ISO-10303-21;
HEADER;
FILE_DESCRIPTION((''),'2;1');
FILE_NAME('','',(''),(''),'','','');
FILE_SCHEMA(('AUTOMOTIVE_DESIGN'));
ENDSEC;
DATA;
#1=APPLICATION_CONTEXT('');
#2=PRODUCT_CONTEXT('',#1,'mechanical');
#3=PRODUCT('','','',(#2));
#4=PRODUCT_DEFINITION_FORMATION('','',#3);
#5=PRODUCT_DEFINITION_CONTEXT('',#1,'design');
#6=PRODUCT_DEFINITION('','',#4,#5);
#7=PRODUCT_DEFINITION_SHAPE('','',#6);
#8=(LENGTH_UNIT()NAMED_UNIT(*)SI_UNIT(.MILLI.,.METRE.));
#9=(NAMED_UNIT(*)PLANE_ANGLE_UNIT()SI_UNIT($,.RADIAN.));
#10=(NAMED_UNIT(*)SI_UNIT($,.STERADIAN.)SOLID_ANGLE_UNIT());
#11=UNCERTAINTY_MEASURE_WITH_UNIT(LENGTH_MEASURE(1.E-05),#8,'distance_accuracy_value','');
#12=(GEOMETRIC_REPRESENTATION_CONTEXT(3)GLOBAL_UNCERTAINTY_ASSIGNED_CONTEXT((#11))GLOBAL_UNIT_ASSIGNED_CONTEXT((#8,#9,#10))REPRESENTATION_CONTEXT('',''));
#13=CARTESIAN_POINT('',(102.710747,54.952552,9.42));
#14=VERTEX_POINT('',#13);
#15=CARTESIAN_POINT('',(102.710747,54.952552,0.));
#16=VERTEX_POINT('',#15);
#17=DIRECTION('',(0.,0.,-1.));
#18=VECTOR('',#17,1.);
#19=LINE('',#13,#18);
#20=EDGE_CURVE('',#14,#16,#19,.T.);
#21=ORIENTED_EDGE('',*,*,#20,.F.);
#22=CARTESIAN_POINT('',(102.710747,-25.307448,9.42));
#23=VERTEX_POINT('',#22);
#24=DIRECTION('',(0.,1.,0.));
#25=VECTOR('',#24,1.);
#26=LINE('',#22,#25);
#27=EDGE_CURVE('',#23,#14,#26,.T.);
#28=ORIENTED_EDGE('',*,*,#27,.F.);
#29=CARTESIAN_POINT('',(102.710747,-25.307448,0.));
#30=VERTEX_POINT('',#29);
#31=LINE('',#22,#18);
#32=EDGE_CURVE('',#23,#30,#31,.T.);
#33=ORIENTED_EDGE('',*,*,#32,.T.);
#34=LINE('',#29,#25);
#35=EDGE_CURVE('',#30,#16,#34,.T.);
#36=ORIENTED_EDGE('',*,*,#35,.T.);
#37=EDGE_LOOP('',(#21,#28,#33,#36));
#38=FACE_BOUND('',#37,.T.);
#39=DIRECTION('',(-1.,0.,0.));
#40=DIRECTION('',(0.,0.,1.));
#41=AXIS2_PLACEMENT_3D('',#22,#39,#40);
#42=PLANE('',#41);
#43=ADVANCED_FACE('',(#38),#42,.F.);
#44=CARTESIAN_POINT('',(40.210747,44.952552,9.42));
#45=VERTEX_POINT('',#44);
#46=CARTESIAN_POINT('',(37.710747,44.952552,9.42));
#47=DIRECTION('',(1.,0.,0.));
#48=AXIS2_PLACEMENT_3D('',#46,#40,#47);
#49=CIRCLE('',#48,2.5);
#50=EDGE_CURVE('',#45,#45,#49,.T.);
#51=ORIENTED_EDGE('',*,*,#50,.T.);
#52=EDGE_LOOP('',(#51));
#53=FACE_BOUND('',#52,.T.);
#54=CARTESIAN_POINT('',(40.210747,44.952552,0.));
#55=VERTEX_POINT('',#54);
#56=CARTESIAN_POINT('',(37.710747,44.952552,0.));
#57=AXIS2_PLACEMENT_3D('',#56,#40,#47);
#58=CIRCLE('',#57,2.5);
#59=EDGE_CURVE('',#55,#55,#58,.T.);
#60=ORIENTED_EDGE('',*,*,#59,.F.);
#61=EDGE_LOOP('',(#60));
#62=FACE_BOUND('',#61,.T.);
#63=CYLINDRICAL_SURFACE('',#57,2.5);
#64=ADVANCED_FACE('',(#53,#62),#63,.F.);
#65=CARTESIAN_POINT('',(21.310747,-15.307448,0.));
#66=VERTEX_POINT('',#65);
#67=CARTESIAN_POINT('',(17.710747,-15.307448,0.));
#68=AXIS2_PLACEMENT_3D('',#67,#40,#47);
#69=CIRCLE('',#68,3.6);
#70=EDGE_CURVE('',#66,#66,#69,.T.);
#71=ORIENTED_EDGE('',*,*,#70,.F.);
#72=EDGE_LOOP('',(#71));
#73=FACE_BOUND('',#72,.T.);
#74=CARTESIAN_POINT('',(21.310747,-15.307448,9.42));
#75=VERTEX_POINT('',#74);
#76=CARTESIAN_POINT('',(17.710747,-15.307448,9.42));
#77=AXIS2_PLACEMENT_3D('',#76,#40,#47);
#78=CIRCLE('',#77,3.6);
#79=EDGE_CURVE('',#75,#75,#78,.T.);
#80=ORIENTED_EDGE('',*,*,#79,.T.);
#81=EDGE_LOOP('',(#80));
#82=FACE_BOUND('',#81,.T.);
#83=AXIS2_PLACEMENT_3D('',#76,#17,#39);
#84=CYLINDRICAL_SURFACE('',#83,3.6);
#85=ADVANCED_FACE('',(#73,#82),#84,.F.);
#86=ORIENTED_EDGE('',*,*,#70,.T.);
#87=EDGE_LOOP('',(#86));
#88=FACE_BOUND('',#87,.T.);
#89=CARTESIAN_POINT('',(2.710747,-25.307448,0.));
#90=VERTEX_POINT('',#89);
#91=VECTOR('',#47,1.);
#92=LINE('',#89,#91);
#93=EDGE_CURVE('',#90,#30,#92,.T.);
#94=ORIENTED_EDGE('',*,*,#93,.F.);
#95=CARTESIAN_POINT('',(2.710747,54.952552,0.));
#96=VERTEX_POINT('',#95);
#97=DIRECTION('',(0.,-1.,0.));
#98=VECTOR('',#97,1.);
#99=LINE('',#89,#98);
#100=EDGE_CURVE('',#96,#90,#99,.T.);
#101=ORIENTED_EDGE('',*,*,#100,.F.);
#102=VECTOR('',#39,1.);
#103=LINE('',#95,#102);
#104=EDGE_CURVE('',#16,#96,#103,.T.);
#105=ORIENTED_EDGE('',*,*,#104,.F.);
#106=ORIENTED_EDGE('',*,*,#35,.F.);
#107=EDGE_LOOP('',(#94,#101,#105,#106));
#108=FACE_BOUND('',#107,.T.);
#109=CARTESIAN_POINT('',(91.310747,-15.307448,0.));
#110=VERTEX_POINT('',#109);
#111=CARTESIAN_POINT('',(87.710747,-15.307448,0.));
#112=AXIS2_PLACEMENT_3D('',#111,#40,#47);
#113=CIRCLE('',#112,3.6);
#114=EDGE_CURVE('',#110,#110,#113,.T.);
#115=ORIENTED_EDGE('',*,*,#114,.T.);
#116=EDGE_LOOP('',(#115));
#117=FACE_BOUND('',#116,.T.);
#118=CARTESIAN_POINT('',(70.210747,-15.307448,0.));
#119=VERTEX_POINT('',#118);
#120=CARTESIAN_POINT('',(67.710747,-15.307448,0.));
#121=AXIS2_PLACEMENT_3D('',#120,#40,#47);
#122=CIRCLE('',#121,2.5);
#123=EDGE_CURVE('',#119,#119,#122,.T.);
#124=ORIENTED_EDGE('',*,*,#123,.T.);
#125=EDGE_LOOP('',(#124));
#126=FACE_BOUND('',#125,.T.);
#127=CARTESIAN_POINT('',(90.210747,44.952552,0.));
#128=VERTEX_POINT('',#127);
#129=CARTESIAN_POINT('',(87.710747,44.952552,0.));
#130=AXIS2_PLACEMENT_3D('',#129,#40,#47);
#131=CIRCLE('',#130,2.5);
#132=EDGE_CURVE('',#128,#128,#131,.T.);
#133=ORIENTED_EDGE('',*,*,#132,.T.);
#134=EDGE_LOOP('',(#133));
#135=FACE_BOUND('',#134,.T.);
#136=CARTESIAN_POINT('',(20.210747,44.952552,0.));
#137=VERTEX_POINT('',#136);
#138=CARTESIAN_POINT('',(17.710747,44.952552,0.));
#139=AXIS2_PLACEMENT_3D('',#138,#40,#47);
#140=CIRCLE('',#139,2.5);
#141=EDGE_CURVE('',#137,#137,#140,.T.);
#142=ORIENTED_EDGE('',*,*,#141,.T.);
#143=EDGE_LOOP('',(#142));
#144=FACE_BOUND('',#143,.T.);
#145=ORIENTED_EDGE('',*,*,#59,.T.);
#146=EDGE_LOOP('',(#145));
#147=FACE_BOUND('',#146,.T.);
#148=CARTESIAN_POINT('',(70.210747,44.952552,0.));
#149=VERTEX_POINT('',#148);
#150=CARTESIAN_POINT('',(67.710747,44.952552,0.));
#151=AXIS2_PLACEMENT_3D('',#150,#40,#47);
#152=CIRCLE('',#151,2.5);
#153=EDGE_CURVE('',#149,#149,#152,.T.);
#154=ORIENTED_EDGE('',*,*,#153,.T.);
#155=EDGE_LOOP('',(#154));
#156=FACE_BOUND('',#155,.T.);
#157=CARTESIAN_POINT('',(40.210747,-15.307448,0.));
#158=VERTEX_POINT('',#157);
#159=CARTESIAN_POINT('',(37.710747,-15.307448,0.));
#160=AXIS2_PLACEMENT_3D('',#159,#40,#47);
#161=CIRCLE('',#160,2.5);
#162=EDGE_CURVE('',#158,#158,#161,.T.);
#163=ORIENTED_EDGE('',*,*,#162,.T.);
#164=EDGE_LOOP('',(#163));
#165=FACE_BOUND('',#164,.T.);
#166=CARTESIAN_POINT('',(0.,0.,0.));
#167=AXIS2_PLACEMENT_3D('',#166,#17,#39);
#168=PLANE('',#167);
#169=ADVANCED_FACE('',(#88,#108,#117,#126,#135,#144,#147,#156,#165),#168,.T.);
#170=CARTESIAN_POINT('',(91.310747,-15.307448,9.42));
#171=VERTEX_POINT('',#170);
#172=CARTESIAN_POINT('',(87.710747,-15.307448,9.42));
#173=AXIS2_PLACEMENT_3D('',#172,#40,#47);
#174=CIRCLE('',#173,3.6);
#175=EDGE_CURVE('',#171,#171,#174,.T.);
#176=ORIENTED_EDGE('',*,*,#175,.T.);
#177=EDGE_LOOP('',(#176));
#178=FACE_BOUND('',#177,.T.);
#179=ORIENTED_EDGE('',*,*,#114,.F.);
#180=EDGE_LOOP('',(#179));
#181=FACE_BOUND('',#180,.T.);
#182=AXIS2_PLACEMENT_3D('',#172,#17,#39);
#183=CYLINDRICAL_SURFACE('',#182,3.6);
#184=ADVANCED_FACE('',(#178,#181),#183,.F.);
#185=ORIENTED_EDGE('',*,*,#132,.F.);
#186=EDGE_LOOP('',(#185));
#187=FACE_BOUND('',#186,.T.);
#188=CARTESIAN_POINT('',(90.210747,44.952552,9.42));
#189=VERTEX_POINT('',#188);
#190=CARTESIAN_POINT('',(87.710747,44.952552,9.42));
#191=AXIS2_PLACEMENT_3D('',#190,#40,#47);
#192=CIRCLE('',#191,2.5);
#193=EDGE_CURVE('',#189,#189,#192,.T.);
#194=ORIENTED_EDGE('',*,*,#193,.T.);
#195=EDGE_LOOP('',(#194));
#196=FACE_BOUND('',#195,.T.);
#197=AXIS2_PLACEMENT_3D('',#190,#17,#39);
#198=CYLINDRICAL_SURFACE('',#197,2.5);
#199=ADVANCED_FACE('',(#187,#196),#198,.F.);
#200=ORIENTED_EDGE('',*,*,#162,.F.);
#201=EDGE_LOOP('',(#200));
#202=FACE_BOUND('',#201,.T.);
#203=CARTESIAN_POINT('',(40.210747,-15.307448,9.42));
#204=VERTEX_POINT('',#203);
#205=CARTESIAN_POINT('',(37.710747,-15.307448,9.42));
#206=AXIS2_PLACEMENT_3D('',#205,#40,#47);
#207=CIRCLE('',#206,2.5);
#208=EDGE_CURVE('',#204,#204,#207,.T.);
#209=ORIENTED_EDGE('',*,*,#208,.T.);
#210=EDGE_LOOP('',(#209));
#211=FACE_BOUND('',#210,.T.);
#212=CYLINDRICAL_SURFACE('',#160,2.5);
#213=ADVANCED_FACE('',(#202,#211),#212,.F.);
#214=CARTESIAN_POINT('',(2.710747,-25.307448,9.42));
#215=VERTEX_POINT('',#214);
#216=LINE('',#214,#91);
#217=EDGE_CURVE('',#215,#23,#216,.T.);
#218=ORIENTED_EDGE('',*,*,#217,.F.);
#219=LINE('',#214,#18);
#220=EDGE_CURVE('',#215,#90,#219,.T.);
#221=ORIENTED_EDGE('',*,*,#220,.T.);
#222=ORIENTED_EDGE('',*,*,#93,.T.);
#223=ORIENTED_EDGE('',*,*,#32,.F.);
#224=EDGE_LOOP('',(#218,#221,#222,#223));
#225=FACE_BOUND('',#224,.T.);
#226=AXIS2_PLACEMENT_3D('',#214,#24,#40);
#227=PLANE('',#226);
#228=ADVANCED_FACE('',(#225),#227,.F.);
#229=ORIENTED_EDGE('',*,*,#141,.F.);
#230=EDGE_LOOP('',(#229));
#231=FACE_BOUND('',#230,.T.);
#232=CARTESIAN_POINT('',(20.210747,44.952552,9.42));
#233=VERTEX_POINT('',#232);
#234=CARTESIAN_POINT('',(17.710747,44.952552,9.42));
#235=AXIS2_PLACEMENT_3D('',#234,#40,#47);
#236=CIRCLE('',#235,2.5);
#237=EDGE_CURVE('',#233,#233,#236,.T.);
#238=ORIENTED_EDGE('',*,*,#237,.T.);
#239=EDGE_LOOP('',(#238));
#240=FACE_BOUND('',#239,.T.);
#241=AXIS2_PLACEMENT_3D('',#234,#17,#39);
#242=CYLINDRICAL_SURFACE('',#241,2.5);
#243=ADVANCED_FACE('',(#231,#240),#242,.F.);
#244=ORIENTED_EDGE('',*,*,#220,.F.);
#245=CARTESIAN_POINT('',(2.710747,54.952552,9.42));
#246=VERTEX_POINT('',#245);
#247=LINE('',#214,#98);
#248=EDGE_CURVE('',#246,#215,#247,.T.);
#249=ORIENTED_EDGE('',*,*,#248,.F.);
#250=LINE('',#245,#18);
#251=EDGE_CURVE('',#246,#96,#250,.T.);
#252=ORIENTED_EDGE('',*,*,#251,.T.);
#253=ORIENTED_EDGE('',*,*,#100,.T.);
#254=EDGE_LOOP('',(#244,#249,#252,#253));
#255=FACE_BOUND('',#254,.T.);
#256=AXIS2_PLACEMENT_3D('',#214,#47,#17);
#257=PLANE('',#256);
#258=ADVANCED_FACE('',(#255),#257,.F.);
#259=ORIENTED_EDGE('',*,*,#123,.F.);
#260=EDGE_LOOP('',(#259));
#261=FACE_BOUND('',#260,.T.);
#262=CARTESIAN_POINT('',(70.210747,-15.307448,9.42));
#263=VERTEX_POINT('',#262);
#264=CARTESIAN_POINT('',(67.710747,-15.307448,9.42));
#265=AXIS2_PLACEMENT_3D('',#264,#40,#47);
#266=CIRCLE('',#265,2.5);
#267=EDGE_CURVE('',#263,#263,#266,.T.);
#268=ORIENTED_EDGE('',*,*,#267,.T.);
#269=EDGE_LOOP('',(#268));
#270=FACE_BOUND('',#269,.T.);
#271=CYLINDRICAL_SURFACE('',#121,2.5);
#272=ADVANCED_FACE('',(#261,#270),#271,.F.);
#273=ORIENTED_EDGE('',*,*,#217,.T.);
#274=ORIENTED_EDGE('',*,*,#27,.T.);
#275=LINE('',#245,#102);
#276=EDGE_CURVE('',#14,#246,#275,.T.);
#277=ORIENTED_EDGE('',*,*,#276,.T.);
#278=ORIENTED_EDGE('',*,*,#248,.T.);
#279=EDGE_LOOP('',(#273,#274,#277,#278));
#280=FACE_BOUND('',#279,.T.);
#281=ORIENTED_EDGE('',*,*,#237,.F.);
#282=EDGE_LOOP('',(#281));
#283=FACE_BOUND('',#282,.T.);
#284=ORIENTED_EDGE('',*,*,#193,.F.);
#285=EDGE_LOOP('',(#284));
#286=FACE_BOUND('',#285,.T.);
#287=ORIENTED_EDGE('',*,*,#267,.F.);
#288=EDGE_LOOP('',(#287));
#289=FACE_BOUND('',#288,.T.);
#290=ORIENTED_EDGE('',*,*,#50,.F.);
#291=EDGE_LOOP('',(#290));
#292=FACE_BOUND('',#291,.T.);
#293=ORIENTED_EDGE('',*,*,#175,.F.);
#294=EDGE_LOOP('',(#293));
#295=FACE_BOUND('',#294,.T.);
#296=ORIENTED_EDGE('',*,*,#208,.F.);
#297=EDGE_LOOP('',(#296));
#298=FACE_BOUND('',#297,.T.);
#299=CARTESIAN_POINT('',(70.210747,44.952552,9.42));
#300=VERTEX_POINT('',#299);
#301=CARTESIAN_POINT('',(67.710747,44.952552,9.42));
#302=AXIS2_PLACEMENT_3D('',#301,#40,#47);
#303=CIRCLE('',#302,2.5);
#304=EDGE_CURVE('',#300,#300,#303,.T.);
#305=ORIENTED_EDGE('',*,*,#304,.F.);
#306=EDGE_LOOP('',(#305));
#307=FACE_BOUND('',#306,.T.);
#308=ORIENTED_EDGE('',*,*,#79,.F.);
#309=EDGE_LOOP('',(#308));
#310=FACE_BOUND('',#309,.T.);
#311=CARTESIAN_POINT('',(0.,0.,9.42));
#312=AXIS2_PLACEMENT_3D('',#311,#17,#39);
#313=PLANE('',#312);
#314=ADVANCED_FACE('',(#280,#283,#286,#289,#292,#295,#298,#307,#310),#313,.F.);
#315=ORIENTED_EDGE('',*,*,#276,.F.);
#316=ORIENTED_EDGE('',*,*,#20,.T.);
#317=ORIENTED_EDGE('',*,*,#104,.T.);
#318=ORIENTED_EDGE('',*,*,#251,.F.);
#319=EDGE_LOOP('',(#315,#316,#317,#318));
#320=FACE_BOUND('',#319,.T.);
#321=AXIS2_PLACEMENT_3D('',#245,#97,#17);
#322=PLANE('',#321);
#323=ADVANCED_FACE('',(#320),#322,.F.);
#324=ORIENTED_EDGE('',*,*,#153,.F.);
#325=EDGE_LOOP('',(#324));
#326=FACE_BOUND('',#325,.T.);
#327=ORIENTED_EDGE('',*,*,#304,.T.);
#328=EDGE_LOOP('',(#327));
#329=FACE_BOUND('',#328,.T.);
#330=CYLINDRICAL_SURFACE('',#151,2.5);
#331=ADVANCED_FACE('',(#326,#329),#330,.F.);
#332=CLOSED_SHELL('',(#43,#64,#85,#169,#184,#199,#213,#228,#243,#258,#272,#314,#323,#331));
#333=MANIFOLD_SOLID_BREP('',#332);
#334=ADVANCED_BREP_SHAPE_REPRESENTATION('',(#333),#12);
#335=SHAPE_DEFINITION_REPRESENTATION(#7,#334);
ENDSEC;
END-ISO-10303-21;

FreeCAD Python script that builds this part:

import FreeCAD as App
import Part
import Sketcher

V = App.Vector

doc = App.newDocument("Part")
body = doc.addObject("PartDesign::Body", "Body")

sketch1 = body.newObject("Sketcher::SketchObject", "Sketch")
sketch1.AttachmentSupport = (doc.getObject("XY_Plane"), [""])
sketch1.MapMode = "FlatFace"
sketch1.addGeometry([
    Part.LineSegment(V(2.7, 55, 0), V(2.7, -25.3, 0)),
    Part.LineSegment(V(2.7, -25.3, 0), V(102.7, -25.3, 0)),
    Part.LineSegment(V(102.7, -25.3, 0), V(102.7, 55, 0)),
    Part.LineSegment(V(102.7, 55, 0), V(2.7, 55, 0)),
    Part.Circle(V(17.7, -15.3, 0), V(0, 0, 1), 3.6),
    Part.Circle(V(87.7, -15.3, 0), V(0, 0, 1), 3.6),
    Part.Circle(V(17.7, 45, 0), V(0, 0, 1), 2.5),
    Part.Circle(V(87.7, 45, 0), V(0, 0, 1), 2.5),
], False)
sketch1.addConstraint([
    Sketcher.Constraint("Coincident", 0, 2, 1, 1),
    Sketcher.Constraint("Coincident", 1, 2, 2, 1),
    Sketcher.Constraint("Coincident", 2, 2, 3, 1),
    Sketcher.Constraint("Coincident", 3, 2, 0, 1),
    Sketcher.Constraint("Vertical", 0),
    Sketcher.Constraint("Horizontal", 1),
    Sketcher.Constraint("Vertical", 2),
    Sketcher.Constraint("Horizontal", 3),
    Sketcher.Constraint("Equal", 4, 5),
    Sketcher.Constraint("Equal", 6, 7),
    Sketcher.Constraint("Horizontal", 4, 3, 5, 3),
    Sketcher.Constraint("Horizontal", 6, 3, 7, 3),
    Sketcher.Constraint("Vertical", 4, 3, 6, 3),
    Sketcher.Constraint("Vertical", 5, 3, 7, 3),
    Sketcher.Constraint("Diameter", 6, 5.0),
    Sketcher.Constraint("Diameter", 4, 7.2),
    Sketcher.Constraint("DistanceX", 1, 1, 1, 2, 100.0),
    Sketcher.Constraint("DistanceX", 4, 3, 5, 3, 70.0),
    Sketcher.Constraint("DistanceX", 0, 2, 4, 3, 15.0),
    Sketcher.Constraint("DistanceY", 0, 2, 4, 3, 10.0),
    Sketcher.Constraint("DistanceY", 7, 3, 2, 2, 10.0),
    Sketcher.Constraint("DistanceY", 0, 2, 0, 1, 80.26),
    Sketcher.Constraint("DistanceY", 4, 3, -1, 1, 15.307448),
    Sketcher.Constraint("DistanceX", -1, 1, 4, 3, 17.710747),
])
pad1 = body.newObject("PartDesign::Pad", "Pad")
pad1.Profile = sketch1
pad1.Length = 9.42

sketch2 = body.newObject("Sketcher::SketchObject", "Sketch001")
sketch2.AttachmentSupport = (doc.getObject("XY_Plane"), [""])
sketch2.MapMode = "FlatFace"
sketch2.AttachmentOffset = App.Placement(V(0, 0, 9.42), App.Rotation())
sketch2.addGeometry([
    Part.Circle(V(37.7, -15.3, 0), V(0, 0, 1), 2.5),
    Part.Circle(V(67.7, -15.3, 0), V(0, 0, 1), 2.5),
    Part.Circle(V(67.7, 45, 0), V(0, 0, 1), 2.5),
    Part.Circle(V(37.7, 45, 0), V(0, 0, 1), 2.5),
], False)
sketch2.addConstraint([
    Sketcher.Constraint("Equal", 0, 1),
    Sketcher.Constraint("Equal", 1, 2),
    Sketcher.Constraint("Equal", 2, 3),
    Sketcher.Constraint("Horizontal", 0, 3, 1, 3),
    Sketcher.Constraint("Horizontal", 2, 3, 3, 3),
    Sketcher.Constraint("Vertical", 1, 3, 2, 3),
    Sketcher.Constraint("Vertical", 0, 3, 3, 3),
    Sketcher.Constraint("Diameter", 0, 5.0),
    Sketcher.Constraint("DistanceX", 0, 3, 1, 3, 30.0),
    Sketcher.Constraint("DistanceY", 1, 3, 2, 3, 60.26),
    Sketcher.Constraint("DistanceY", 0, 3, -1, 1, 15.307448),
    Sketcher.Constraint("DistanceX", -1, 1, 0, 3, 37.710747),
])
pocket1 = body.newObject("PartDesign::Pocket", "Pocket")
pocket1.Profile = sketch2
pocket1.Type = "ThroughAll"

doc.recompute()
